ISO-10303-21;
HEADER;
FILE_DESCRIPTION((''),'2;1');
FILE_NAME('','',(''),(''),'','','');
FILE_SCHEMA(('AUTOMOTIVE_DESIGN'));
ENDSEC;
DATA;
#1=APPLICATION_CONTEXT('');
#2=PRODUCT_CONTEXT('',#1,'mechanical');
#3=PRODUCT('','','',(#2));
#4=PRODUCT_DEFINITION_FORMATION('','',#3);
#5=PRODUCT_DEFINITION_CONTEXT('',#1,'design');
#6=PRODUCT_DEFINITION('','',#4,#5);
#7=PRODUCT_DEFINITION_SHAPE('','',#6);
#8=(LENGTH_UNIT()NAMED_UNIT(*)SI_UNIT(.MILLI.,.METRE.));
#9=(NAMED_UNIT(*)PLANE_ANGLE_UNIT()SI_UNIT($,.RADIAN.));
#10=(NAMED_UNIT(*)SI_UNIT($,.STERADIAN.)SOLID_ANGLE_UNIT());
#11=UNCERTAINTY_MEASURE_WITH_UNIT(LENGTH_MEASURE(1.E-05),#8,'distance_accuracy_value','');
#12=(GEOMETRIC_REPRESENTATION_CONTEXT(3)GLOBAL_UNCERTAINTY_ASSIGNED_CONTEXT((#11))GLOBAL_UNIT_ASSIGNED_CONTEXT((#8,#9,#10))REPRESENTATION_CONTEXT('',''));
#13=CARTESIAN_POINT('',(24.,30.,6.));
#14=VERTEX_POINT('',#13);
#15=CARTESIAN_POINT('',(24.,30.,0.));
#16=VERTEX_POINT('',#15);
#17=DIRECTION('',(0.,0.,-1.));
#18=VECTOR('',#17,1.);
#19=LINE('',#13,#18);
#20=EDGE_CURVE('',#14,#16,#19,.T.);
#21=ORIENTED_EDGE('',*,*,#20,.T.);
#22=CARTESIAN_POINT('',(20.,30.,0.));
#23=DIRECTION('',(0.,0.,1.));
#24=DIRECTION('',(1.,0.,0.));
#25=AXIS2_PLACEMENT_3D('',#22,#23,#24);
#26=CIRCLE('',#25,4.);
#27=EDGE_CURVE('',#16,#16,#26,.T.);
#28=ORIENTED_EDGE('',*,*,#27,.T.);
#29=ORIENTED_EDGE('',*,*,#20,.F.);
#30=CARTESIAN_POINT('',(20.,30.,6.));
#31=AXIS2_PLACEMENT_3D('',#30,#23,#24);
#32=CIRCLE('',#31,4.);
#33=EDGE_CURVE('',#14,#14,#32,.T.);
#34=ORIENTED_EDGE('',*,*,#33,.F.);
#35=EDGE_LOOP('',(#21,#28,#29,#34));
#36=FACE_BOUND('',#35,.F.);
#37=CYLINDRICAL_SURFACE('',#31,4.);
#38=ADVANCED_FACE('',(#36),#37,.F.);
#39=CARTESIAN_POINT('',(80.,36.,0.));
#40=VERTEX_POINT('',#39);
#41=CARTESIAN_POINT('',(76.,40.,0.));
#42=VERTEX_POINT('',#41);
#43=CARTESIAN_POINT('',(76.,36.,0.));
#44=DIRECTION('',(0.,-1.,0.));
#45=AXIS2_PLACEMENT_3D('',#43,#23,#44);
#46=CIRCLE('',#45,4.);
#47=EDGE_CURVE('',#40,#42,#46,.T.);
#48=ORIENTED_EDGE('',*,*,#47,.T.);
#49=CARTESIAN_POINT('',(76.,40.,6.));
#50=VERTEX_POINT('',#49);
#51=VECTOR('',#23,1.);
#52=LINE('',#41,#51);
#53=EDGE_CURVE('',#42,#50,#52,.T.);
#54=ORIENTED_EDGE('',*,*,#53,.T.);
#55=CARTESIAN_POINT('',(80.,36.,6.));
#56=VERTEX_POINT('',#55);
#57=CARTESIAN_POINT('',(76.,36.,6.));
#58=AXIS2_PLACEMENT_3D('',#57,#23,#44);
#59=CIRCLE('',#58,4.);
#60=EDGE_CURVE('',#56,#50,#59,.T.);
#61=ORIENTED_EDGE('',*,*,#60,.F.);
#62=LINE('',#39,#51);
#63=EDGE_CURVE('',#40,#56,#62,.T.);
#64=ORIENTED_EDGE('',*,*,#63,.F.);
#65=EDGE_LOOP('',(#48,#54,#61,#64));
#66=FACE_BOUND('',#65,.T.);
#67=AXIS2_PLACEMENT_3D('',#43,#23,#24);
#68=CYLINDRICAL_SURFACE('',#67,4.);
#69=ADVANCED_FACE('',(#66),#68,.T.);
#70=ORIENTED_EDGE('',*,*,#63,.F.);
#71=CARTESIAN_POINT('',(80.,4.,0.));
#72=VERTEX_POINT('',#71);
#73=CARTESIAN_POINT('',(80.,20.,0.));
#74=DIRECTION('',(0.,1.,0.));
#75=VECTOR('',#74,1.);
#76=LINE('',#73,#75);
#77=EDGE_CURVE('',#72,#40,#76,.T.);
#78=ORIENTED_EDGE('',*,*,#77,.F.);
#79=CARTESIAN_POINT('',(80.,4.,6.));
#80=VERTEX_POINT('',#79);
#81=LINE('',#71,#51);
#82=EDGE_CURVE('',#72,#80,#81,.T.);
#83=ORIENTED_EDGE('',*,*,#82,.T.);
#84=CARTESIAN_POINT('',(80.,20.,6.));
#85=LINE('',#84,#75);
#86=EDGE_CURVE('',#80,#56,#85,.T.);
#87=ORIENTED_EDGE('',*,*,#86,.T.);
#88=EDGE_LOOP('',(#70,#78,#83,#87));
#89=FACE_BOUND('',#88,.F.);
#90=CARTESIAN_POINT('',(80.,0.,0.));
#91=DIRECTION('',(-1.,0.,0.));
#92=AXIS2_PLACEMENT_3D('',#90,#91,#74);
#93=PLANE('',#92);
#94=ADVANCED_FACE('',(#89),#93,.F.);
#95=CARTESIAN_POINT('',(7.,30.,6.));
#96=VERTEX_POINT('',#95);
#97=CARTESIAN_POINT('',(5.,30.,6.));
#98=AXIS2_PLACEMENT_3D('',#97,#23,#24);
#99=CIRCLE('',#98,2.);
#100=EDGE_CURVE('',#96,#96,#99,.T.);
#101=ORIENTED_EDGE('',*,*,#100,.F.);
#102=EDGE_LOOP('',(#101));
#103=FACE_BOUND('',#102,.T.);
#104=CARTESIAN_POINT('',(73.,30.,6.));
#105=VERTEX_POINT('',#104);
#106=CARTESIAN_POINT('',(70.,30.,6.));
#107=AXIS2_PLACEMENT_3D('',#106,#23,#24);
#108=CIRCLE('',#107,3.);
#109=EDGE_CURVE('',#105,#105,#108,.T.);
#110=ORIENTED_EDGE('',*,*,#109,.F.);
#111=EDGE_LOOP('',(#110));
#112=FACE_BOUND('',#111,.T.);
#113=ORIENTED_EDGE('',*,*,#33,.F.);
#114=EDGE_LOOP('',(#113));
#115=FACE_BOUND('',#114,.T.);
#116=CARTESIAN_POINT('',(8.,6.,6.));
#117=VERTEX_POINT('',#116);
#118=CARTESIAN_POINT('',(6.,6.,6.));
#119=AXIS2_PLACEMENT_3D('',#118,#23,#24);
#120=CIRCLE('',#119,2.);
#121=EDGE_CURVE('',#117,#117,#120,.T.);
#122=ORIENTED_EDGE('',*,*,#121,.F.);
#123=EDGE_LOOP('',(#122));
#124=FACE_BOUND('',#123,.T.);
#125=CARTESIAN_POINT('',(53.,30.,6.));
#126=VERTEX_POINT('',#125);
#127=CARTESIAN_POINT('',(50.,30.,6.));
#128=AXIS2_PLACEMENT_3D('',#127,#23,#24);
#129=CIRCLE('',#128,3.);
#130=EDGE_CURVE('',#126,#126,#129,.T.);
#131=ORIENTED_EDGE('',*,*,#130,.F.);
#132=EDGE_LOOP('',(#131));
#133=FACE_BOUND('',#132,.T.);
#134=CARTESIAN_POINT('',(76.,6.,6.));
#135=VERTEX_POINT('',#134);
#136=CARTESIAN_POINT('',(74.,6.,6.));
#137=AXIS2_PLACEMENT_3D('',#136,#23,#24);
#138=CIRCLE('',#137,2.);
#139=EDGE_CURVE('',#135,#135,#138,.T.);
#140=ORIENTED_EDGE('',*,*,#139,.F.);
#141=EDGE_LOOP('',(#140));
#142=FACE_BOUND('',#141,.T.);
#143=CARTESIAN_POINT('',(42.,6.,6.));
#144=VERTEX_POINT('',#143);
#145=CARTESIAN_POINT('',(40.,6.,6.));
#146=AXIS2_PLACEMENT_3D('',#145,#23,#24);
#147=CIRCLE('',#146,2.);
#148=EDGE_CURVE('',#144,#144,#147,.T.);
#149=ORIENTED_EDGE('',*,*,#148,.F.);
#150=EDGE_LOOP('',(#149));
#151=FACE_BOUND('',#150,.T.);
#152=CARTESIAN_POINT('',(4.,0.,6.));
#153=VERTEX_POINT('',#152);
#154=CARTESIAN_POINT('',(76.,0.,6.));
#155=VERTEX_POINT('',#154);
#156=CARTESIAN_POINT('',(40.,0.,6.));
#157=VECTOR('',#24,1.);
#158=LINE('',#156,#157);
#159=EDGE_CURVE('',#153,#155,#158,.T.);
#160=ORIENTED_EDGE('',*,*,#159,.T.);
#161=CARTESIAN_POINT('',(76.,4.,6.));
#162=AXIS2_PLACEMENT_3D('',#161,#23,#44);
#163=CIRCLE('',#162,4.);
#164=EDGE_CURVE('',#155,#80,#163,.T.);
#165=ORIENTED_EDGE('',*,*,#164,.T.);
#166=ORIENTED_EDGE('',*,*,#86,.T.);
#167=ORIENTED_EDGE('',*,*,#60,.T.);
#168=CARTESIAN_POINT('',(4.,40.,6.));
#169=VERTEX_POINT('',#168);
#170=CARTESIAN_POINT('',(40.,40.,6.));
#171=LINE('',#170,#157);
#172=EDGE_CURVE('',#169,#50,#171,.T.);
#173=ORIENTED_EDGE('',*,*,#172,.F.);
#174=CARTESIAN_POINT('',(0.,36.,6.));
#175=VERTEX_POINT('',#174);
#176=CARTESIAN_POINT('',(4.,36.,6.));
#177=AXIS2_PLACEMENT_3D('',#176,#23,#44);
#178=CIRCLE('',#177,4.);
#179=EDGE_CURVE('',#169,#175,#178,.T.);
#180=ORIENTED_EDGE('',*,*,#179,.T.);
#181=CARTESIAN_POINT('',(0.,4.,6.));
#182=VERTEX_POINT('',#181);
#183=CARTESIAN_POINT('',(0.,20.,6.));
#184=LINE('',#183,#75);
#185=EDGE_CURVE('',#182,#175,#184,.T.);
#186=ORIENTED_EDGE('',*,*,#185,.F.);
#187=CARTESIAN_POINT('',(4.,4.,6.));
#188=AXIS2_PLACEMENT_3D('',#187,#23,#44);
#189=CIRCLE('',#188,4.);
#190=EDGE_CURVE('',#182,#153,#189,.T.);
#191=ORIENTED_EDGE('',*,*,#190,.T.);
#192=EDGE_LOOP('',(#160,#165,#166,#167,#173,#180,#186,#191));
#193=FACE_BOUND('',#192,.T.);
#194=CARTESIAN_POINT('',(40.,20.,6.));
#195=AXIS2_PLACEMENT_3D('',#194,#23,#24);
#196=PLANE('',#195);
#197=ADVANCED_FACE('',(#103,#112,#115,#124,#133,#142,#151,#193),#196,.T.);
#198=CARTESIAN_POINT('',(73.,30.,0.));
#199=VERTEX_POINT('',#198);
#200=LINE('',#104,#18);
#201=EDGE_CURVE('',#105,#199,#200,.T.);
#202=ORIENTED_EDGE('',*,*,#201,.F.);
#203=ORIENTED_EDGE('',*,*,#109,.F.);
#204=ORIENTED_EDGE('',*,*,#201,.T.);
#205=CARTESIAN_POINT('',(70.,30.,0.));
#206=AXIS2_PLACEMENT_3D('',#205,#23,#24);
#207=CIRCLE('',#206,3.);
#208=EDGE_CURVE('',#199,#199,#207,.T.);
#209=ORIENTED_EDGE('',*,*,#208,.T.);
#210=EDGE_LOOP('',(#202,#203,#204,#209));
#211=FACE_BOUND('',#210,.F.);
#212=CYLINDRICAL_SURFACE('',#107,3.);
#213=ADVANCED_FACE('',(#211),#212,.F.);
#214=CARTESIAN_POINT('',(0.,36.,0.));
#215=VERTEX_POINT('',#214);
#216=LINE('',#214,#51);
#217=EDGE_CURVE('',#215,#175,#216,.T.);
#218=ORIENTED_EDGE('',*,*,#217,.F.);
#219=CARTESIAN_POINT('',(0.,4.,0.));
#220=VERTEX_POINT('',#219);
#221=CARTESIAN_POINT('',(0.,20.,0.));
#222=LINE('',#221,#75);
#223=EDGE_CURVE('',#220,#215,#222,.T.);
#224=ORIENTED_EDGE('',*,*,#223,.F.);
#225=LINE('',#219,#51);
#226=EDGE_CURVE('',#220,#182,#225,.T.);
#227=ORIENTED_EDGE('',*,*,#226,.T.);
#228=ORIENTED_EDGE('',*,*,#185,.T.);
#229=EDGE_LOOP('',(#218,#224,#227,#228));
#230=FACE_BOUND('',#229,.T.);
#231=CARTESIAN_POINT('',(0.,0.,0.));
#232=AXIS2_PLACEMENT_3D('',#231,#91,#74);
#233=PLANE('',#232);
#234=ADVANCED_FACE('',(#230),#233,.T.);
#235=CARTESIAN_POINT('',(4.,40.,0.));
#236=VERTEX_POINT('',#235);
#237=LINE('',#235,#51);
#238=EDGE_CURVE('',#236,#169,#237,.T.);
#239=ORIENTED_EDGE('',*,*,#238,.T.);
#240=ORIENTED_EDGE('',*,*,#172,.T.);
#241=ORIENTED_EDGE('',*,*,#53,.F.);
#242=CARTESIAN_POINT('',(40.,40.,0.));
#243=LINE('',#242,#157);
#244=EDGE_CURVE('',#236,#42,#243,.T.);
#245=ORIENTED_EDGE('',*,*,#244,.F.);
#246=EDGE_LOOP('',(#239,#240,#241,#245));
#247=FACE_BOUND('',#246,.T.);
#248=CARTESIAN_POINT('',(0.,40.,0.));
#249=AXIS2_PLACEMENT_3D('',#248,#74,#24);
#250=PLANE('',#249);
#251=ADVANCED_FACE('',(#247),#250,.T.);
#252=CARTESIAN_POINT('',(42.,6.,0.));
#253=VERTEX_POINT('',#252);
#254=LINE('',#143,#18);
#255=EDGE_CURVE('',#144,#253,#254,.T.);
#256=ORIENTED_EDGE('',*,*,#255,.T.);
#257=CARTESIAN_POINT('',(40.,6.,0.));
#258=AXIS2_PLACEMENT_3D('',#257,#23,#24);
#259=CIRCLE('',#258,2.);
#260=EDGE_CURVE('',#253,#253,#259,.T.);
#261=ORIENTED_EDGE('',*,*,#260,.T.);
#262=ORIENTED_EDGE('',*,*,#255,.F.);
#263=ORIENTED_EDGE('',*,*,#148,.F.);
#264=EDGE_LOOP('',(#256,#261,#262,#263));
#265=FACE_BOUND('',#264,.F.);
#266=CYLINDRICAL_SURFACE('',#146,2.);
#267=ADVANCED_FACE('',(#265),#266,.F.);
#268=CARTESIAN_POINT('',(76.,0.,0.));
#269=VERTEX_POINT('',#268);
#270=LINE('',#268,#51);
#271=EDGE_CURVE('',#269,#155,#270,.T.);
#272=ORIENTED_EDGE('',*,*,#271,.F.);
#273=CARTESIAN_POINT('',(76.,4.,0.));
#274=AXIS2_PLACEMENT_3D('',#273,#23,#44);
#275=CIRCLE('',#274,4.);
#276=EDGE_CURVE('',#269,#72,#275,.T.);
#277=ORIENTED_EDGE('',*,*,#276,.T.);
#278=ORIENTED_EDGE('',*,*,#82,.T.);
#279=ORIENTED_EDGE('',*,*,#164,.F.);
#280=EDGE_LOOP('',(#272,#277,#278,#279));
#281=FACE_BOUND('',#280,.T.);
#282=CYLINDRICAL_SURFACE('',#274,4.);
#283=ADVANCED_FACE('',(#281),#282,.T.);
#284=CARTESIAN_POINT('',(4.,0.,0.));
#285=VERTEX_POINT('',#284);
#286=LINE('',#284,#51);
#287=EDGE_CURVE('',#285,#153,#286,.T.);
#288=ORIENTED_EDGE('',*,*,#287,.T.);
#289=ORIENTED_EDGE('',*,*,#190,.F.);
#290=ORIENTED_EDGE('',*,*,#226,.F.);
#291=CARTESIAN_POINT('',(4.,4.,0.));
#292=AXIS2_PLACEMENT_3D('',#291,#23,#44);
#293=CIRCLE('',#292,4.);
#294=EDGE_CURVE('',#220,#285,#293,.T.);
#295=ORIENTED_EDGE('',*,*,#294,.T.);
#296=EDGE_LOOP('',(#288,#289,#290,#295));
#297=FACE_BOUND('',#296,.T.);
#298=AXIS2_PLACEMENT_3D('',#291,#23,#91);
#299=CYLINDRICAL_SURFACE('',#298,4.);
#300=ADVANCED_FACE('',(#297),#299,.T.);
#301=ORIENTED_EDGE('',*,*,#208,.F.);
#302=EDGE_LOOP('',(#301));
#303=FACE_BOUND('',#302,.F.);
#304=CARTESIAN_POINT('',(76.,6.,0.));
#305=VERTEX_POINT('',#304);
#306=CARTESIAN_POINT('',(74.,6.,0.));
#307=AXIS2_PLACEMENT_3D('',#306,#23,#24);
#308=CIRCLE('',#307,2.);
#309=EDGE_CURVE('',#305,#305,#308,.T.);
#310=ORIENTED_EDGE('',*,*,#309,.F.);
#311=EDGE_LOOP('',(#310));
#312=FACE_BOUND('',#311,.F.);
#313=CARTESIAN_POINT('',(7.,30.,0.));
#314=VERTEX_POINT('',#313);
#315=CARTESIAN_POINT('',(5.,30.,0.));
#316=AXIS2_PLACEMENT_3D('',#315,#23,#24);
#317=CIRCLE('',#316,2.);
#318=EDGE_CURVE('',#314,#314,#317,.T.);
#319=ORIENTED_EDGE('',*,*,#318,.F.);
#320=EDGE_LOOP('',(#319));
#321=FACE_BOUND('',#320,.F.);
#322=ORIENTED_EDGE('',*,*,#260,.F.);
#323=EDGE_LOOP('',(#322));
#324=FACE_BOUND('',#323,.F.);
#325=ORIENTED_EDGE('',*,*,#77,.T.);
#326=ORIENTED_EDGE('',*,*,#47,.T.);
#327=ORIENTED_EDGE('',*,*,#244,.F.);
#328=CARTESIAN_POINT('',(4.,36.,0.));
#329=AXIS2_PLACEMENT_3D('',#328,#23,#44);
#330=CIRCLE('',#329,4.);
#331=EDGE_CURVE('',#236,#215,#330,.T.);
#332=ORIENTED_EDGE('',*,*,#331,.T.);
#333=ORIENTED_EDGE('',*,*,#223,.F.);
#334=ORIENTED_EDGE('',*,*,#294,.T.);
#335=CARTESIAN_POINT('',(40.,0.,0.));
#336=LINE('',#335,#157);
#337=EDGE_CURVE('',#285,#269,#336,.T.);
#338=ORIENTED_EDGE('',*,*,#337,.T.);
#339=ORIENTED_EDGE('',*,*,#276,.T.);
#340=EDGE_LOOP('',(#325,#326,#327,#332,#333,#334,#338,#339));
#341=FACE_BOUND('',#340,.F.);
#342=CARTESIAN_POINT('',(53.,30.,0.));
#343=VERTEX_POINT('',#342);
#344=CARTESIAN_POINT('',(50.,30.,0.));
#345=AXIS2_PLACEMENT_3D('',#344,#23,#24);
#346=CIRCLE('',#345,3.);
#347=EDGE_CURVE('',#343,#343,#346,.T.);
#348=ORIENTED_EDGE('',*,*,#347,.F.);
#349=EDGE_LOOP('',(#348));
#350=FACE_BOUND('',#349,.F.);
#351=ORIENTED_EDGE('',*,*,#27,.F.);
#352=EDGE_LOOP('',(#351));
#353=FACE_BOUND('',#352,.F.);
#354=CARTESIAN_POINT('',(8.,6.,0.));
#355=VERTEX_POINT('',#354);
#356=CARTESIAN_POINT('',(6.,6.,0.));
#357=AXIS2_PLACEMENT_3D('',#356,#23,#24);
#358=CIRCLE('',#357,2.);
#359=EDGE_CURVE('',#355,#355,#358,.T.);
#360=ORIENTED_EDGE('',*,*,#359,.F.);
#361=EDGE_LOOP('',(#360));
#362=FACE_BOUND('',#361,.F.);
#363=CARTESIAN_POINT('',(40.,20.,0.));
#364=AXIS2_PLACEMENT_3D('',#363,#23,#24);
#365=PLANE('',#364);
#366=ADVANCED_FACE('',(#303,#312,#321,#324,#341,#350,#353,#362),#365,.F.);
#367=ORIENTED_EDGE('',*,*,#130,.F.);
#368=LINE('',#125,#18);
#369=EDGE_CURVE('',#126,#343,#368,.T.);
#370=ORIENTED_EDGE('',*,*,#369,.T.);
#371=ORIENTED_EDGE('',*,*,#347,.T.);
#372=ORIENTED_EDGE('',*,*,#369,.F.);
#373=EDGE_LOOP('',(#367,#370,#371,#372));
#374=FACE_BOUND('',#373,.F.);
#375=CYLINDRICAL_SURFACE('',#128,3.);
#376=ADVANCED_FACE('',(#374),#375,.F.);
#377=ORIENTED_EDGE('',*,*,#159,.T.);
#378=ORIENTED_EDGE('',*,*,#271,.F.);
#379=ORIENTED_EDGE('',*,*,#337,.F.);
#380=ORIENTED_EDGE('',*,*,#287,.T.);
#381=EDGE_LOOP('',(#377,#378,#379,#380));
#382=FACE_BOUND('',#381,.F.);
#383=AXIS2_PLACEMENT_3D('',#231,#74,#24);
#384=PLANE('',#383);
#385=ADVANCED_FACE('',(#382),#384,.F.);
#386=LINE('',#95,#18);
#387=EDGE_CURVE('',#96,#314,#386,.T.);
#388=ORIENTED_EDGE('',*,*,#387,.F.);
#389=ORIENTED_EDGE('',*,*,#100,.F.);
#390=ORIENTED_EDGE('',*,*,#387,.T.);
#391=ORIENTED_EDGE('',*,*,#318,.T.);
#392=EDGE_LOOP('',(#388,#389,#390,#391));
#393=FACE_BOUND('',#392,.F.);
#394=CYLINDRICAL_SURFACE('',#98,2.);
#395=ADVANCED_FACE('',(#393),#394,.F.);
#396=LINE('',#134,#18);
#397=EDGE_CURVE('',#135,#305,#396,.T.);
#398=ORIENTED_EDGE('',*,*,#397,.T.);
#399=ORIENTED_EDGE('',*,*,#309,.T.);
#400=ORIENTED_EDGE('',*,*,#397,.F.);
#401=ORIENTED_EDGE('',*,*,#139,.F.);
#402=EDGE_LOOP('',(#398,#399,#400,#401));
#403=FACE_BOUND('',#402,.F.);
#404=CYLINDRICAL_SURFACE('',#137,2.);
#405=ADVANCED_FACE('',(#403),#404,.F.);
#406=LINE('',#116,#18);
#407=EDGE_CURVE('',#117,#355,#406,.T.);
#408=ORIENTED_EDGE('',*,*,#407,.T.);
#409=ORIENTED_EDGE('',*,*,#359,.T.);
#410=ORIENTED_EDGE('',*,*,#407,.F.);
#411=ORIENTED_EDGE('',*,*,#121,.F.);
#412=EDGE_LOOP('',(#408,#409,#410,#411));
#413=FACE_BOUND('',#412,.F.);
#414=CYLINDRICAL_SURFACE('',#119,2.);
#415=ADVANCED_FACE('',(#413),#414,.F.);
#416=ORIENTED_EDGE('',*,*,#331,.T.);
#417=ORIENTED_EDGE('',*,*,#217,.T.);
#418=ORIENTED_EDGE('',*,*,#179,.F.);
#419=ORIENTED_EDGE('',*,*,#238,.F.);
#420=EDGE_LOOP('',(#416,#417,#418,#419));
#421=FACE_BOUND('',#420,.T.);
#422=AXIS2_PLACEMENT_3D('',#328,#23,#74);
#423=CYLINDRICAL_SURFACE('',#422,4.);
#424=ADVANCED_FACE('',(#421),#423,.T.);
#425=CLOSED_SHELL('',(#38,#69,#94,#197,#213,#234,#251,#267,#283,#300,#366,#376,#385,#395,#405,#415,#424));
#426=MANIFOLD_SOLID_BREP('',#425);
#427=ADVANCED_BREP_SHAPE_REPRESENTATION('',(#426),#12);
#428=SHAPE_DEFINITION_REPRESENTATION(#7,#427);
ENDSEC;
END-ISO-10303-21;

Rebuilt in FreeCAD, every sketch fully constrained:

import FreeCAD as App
import Part
import Sketcher
from FreeCAD import Vector
Q = App.Units.Quantity


def edges_at(feature, points):
    """Names of the edges that pass closest to the given points."""
    edges = feature.Shape.Edges
    near = lambda p: min(range(len(edges)), key=lambda i: edges[i].distToShape(Part.Vertex(*p))[0])
    return sorted({f"Edge{near(p) + 1}" for p in points})


def add_polygon(sketch, points):
    """Adds a closed chain of lines whose ends are joined by coincident constraints."""
    first, n = sketch.GeometryCount, len(points)
    for a, b in zip(points, points[1:] + points[:1]):
        sketch.addGeometry(Part.LineSegment(App.Vector(*a, 0), App.Vector(*b, 0)), False)
    for i in range(n):
        sketch.addConstraint(Sketcher.Constraint("Coincident", first + i, 2, first + (i + 1) % n, 1))

doc = App.newDocument("Part")
body = doc.addObject("PartDesign::Body", "Body")

sketch1 = body.newObject("Sketcher::SketchObject", "Sketch")
sketch1.AttachmentSupport = (doc.getObject("XY_Plane"), [""])
sketch1.MapMode = "FlatFace"
add_polygon(sketch1, [(0, 40), (0, 0), (80, 0), (80, 40)])
sketch1.addConstraint(Sketcher.Constraint("Vertical", 0))
sketch1.addConstraint(Sketcher.Constraint("Horizontal", 1))
sketch1.addConstraint(Sketcher.Constraint("Vertical", 2))
sketch1.addConstraint(Sketcher.Constraint("Horizontal", 3))
sketch1.addConstraint(Sketcher.Constraint("Coincident", 0, 2, -1, 1))
sketch1.addConstraint(Sketcher.Constraint("DistanceX", 1, 1, 1, 2, Q("80 mm")))
sketch1.addConstraint(Sketcher.Constraint("DistanceY", 0, 2, 0, 1, Q("40 mm")))
pad1 = body.newObject("PartDesign::Pad", "Pad")
pad1.Profile = sketch1
pad1.Length = 6

sketch2 = body.newObject("Sketcher::SketchObject", "Sketch001")
sketch2.AttachmentSupport = (doc.getObject("XY_Plane"), [""])
sketch2.MapMode = "FlatFace"
sketch2.AttachmentOffset = App.Placement(Vector(0, 0, 6), App.Rotation())
sketch2.addGeometry(Part.Circle(Vector(50, 30, 0), Vector(0, 0, 1), 3), False)
sketch2.addGeometry(Part.Circle(Vector(70, 30, 0), Vector(0, 0, 1), 3), False)
sketch2.addGeometry(Part.Circle(Vector(20, 30, 0), Vector(0, 0, 1), 4), False)
sketch2.addConstraint(Sketcher.Constraint("Equal", 0, 1))
sketch2.addConstraint(Sketcher.Constraint("Horizontal", 0, 3, 1, 3))
sketch2.addConstraint(Sketcher.Constraint("Horizontal", 1, 3, 2, 3))
sketch2.addConstraint(Sketcher.Constraint("Diameter", 0, Q("6 mm")))
sketch2.addConstraint(Sketcher.Constraint("Diameter", 2, Q("8 mm")))
sketch2.addConstraint(Sketcher.Constraint("DistanceX", -1, 1, 0, 3, Q("50 mm")))
sketch2.addConstraint(Sketcher.Constraint("DistanceY", -1, 1, 0, 3, Q("30 mm")))
sketch2.addConstraint(Sketcher.Constraint("DistanceX", -1, 1, 1, 3, Q("70 mm")))
sketch2.addConstraint(Sketcher.Constraint("DistanceX", -1, 1, 2, 3, Q("20 mm")))
pocket1 = body.newObject("PartDesign::Pocket", "Pocket")
pocket1.Profile = sketch2
pocket1.Length = 7
doc.recompute()

fillet = body.newObject("PartDesign::Fillet", "Fillet")
fillet.Base = (pocket1, edges_at(pocket1, [(0, 0, 3)]))
fillet.Radius = 4
doc.recompute()

fillet2 = body.newObject("PartDesign::Fillet", "Fillet001")
fillet2.Base = (fillet, edges_at(fillet, [(80, 0, 3)]))
fillet2.Radius = 4
doc.recompute()

fillet3 = body.newObject("PartDesign::Fillet", "Fillet002")
fillet3.Base = (fillet2, edges_at(fillet2, [(80, 40, 3)]))
fillet3.Radius = 4
doc.recompute()

fillet4 = body.newObject("PartDesign::Fillet", "Fillet003")
fillet4.Base = (fillet3, edges_at(fillet3, [(0, 40, 3)]))
fillet4.Radius = 4

sketch3 = body.newObject("Sketcher::SketchObject", "Sketch002")
sketch3.AttachmentSupport = (doc.getObject("XY_Plane"), [""])
sketch3.MapMode = "FlatFace"
sketch3.AttachmentOffset = App.Placement(Vector(0, 0, 6), App.Rotation())
sketch3.addGeometry(Part.Circle(Vector(5, 30, 0), Vector(0, 0, 1), 2), False)
sketch3.addGeometry(Part.Circle(Vector(6, 6, 0), Vector(0, 0, 1), 2), False)
sketch3.addGeometry(Part.Circle(Vector(40, 6, 0), Vector(0, 0, 1), 2), False)
sketch3.addGeometry(Part.Circle(Vector(74, 6, 0), Vector(0, 0, 1), 2), False)
sketch3.addConstraint(Sketcher.Constraint("Equal", 0, 1))
sketch3.addConstraint(Sketcher.Constraint("Equal", 1, 2))
sketch3.addConstraint(Sketcher.Constraint("Equal", 2, 3))
sketch3.addConstraint(Sketcher.Constraint("Horizontal", 1, 3, 2, 3))
sketch3.addConstraint(Sketcher.Constraint("Horizontal", 2, 3, 3, 3))
sketch3.addConstraint(Sketcher.Constraint("Diameter", 0, Q("4 mm")))
sketch3.addConstraint(Sketcher.Constraint("DistanceX", -1, 1, 0, 3, Q("5 mm")))
sketch3.addConstraint(Sketcher.Constraint("DistanceY", -1, 1, 0, 3, Q("30 mm")))
sketch3.addConstraint(Sketcher.Constraint("DistanceX", -1, 1, 1, 3, Q("6 mm")))
sketch3.addConstraint(Sketcher.Constraint("DistanceY", -1, 1, 1, 3, Q("6 mm")))
sketch3.addConstraint(Sketcher.Constraint("DistanceX", -1, 1, 2, 3, Q("40 mm")))
sketch3.addConstraint(Sketcher.Constraint("DistanceX", -1, 1, 3, 3, Q("74 mm")))
pocket2 = body.newObject("PartDesign::Pocket", "Pocket001")
pocket2.Profile = sketch3
pocket2.Length = 8

doc.recompute()
